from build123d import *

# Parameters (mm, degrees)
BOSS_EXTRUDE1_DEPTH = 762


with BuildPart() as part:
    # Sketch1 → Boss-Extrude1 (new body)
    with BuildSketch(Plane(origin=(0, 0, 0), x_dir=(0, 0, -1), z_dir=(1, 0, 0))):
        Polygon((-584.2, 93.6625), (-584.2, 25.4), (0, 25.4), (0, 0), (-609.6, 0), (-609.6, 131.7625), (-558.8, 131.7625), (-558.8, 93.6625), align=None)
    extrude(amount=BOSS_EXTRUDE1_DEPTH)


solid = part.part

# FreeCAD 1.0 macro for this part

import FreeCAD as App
import Part
import Sketcher
from FreeCAD import Vector
Q = App.Units.Quantity


def add_polygon(sketch, points):
    """Adds a closed chain of lines whose ends are joined by coincident constraints."""
    first, n = sketch.GeometryCount, len(points)
    for a, b in zip(points, points[1:] + points[:1]):
        sketch.addGeometry(Part.LineSegment(App.Vector(*a, 0), App.Vector(*b, 0)), False)
    for i in range(n):
        sketch.addConstraint(Sketcher.Constraint("Coincident", first + i, 2, first + (i + 1) % n, 1))

doc = App.newDocument("Part")
body = doc.addObject("PartDesign::Body", "Body")

sketch1 = doc.addObject("Sketcher::SketchObject", "Sketch")
body.addObject(sketch1)
sketch1.AttachmentSupport = (doc.YZ_Plane, [""])
sketch1.MapMode = "FlatFace"
add_polygon(sketch1, [(25, 584), (94, 584), (94, 559), (132, 559), (132, 610), (0, 610), (0, 0), (25, 0)])
sketch1.addConstraint([
    Sketcher.Constraint("Horizontal", 0),
    Sketcher.Constraint("Vertical", 1),
    Sketcher.Constraint("Horizontal", 2),
    Sketcher.Constraint("Vertical", 3),
    Sketcher.Constraint("Horizontal", 4),
    Sketcher.Constraint("Vertical", 5),
    Sketcher.Constraint("Horizontal", 6),
    Sketcher.Constraint("Vertical", 7),
    Sketcher.Constraint("Coincident", 5, 2, -1, 1),
    Sketcher.Constraint("Equal", 6, 1),
    Sketcher.Constraint("DistanceX", 6, 1, 6, 2, Q("1 in")),
    Sketcher.Constraint("DistanceY", 3, 1, 3, 2, Q("2 in")),
    Sketcher.Constraint("DistanceY", 5, 2, 5, 1, Q("24 in")),
    Sketcher.Constraint("DistanceX", 2, 1, 2, 2, Q("1.5 in")),
    Sketcher.Constraint("DistanceX", 0, 1, 0, 2, Q("2.6875 in")),
])
pad1 = doc.addObject("PartDesign::Pad", "Pad")
body.addObject(pad1)
pad1.Profile = sketch1
pad1.Length = Q("30 in")

doc.recompute()
